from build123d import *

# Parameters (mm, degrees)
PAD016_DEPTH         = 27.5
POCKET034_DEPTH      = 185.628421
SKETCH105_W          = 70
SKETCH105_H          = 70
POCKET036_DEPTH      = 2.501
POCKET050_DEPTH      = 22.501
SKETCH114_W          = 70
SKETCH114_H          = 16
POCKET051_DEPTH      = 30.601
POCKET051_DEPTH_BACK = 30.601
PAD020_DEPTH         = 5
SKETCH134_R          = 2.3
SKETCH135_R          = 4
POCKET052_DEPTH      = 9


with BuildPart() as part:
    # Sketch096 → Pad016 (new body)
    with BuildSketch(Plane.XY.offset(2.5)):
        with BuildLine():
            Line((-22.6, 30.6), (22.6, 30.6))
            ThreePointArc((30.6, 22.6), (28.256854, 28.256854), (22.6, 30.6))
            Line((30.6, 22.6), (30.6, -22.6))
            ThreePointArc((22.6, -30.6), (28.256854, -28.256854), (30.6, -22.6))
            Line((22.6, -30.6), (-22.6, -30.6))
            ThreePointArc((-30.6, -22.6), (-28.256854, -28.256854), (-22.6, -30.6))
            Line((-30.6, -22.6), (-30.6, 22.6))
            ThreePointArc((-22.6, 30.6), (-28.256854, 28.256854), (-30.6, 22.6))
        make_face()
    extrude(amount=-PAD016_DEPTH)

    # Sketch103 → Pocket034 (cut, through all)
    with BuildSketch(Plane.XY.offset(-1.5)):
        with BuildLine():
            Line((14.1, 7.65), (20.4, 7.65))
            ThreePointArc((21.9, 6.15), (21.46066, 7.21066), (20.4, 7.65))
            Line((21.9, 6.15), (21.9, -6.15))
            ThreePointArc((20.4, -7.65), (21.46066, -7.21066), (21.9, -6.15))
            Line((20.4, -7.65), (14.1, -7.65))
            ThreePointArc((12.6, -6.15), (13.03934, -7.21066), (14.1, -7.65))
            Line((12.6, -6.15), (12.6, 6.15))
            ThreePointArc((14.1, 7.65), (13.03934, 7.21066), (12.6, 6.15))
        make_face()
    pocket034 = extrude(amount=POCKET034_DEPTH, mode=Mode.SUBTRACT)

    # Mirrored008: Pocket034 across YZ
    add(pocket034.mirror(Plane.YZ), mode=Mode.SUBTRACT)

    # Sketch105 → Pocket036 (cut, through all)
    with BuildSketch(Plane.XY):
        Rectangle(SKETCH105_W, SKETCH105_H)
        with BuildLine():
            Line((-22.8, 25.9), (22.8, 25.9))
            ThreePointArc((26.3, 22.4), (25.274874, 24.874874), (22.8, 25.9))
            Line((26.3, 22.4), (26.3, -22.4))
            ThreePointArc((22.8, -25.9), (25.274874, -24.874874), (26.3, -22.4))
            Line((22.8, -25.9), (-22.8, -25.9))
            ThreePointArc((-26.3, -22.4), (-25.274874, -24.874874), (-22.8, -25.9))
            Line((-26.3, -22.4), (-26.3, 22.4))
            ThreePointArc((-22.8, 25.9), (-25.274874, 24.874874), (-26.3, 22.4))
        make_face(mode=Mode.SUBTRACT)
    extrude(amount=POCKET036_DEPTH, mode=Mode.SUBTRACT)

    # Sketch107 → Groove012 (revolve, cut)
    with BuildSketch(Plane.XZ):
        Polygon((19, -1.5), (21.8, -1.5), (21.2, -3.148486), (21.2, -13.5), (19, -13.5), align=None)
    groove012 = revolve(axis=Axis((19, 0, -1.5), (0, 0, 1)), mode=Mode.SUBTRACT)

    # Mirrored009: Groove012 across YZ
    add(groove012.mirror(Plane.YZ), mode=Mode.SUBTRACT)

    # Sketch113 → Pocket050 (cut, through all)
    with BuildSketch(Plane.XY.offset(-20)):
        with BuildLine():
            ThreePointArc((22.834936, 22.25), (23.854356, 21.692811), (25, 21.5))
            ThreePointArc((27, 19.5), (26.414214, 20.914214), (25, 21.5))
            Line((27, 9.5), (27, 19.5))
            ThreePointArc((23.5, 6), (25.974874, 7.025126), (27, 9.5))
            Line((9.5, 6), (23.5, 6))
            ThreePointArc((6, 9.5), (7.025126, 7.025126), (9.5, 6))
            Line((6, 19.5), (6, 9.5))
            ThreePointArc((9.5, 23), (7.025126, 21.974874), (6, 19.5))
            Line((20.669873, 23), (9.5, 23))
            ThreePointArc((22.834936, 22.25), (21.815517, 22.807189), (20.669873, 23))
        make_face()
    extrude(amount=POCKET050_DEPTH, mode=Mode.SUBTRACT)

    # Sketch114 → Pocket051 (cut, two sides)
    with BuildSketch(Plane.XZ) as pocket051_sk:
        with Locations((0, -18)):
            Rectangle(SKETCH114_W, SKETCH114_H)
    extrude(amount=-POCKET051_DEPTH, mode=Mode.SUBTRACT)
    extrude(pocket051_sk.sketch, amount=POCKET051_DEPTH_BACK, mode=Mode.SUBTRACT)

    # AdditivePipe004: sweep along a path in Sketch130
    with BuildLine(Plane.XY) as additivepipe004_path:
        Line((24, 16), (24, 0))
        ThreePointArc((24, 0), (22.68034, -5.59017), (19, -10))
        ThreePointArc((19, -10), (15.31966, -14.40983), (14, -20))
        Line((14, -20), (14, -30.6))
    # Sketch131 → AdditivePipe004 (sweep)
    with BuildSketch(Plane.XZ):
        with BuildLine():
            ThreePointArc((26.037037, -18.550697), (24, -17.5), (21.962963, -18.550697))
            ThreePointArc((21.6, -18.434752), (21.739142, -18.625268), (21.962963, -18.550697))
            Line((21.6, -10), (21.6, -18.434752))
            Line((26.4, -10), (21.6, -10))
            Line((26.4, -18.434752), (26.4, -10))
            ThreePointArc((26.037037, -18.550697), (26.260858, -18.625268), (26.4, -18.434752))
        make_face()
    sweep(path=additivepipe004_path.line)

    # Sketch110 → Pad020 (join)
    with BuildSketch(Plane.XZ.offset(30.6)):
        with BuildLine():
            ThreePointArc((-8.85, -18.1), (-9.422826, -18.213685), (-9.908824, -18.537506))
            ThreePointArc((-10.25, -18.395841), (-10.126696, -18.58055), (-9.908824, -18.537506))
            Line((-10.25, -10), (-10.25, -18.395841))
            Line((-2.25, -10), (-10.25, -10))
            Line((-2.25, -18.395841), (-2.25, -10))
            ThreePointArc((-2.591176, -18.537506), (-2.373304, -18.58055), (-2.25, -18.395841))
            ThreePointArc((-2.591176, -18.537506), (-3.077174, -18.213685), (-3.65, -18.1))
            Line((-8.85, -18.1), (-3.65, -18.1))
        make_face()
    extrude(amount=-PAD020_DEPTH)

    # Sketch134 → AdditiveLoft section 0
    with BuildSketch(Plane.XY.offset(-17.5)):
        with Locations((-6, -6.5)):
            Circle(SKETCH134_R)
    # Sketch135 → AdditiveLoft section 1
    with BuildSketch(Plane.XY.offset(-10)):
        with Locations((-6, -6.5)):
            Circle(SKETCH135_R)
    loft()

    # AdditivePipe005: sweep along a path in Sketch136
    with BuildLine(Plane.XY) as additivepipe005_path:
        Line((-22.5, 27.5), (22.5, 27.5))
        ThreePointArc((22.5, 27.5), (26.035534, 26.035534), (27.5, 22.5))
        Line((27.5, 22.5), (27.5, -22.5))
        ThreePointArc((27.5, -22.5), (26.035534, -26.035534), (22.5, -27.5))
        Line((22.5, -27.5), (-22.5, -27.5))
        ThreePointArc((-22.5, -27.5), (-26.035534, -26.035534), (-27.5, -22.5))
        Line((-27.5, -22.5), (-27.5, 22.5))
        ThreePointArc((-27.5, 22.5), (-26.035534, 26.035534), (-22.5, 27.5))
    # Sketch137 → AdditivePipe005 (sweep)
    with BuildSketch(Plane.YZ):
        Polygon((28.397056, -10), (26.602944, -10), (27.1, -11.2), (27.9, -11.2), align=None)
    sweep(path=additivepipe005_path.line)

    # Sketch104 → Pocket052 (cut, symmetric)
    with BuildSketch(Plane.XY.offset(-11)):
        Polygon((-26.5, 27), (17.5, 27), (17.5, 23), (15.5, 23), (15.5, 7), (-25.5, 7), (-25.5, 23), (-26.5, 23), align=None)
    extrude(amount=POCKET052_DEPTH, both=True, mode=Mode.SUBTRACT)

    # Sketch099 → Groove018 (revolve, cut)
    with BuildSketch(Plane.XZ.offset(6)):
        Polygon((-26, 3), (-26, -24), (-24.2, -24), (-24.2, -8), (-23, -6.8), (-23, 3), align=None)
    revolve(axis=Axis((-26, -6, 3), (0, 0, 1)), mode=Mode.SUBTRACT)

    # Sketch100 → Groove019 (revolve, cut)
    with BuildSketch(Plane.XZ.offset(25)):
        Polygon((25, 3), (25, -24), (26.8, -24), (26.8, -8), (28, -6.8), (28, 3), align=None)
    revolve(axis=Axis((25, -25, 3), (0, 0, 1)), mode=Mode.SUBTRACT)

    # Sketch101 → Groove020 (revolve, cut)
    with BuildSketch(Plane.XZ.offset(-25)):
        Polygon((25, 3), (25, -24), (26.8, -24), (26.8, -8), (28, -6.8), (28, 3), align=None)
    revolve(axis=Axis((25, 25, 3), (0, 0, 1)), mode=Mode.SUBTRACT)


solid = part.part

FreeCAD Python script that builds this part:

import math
import FreeCAD as App
import Part
import Sketcher
Q = App.Units.Quantity


def add_polygon(sketch, points):
    """Adds a closed chain of lines whose ends are joined by coincident constraints."""
    first, n = sketch.GeometryCount, len(points)
    for a, b in zip(points, points[1:] + points[:1]):
        sketch.addGeometry(Part.LineSegment(App.Vector(*a, 0), App.Vector(*b, 0)), False)
    for i in range(n):
        sketch.addConstraint(Sketcher.Constraint("Coincident", first + i, 2, first + (i + 1) % n, 1))

doc = App.newDocument("Part")
body = doc.addObject("PartDesign::Body", "Body")

# Sketch on XY plane
sketch1 = body.newObject("Sketcher::SketchObject", "Sketch")
sketch1.AttachmentSupport = (doc.getObject("XY_Plane"), [""])
sketch1.MapMode = "FlatFace"
sketch1.AttachmentOffset = App.Placement(App.Vector(0, 0, 2.5), App.Rotation())
sketch1.addGeometry([
    Part.LineSegment(App.Vector(23, 31, 0), App.Vector(-23, 31, 0)),  # 0
    Part.ArcOfCircle(Part.Circle(App.Vector(-23, 23, 0), App.Vector(0, 0, 1), 8), math.radians(90), math.radians(180)),  # 1
    Part.LineSegment(App.Vector(-31, 23, 0), App.Vector(-31, -23, 0)),  # 2
    Part.ArcOfCircle(Part.Circle(App.Vector(-23, -23, 0), App.Vector(0, 0, 1), 8), math.radians(-180), math.radians(-90)),  # 3
    Part.LineSegment(App.Vector(-23, -31, 0), App.Vector(23, -31, 0)),  # 4
    Part.ArcOfCircle(Part.Circle(App.Vector(23, -23, 0), App.Vector(0, 0, 1), 8), math.radians(-90), math.radians(0)),  # 5
    Part.LineSegment(App.Vector(31, -23, 0), App.Vector(31, 23, 0)),  # 6
    Part.ArcOfCircle(Part.Circle(App.Vector(23, 23, 0), App.Vector(0, 0, 1), 8), math.radians(0), math.radians(90)),  # 7
], False)
sketch1.addConstraint([
    Sketcher.Constraint("Tangent", 0, 2, 1, 1),
    Sketcher.Constraint("Tangent", 1, 2, 2, 1),
    Sketcher.Constraint("Tangent", 2, 2, 3, 1),
    Sketcher.Constraint("Tangent", 3, 2, 4, 1),
    Sketcher.Constraint("Tangent", 4, 2, 5, 1),
    Sketcher.Constraint("Tangent", 5, 2, 6, 1),
    Sketcher.Constraint("Tangent", 6, 2, 7, 1),
    Sketcher.Constraint("Tangent", 7, 2, 0, 1),
    Sketcher.Constraint("Horizontal", 0),
    Sketcher.Constraint("Vertical", 2),
    Sketcher.Constraint("Horizontal", 4),
    Sketcher.Constraint("Vertical", 6),
    Sketcher.Constraint("Equal", 1, 3),
    Sketcher.Constraint("Equal", 3, 5),
    Sketcher.Constraint("Equal", 5, 7),
    Sketcher.Constraint("Symmetric", 1, 3, 5, 3, -1, 1),
    Sketcher.Constraint("Equal", 4, 2),
    Sketcher.Constraint("Radius", 1, Q("8.000001 mm")),
    Sketcher.Constraint("DistanceX", 0, 2, 0, 1, Q("45.2 mm")),
])
pad1 = body.newObject("PartDesign::Pad", "Pad")
pad1.Profile = sketch1
pad1.Length = 27.5
pad1.Reversed = True

# Sketch on XY plane
sketch2 = body.newObject("Sketcher::SketchObject", "Sketch001")
sketch2.AttachmentSupport = (doc.getObject("XY_Plane"), [""])
sketch2.MapMode = "FlatFace"
sketch2.AttachmentOffset = App.Placement(App.Vector(0, 0, -1.5), App.Rotation())
sketch2.addGeometry([
    Part.LineSegment(App.Vector(20.4, 7.7, 0), App.Vector(14.1, 7.7, 0)),  # 0
    Part.ArcOfCircle(Part.Circle(App.Vector(14.1, 6.1, 0), App.Vector(0, 0, 1), 1.5), math.radians(90), math.radians(180)),  # 1
    Part.LineSegment(App.Vector(12.6, 6.2, 0), App.Vector(12.6, -6.2, 0)),  # 2
    Part.ArcOfCircle(Part.Circle(App.Vector(14.1, -6.1, 0), App.Vector(0, 0, 1), 1.5), math.radians(-180), math.radians(-90)),  # 3
    Part.LineSegment(App.Vector(14.1, -7.7, 0), App.Vector(20.4, -7.7, 0)),  # 4
    Part.ArcOfCircle(Part.Circle(App.Vector(20.4, -6.1, 0), App.Vector(0, 0, 1), 1.5), math.radians(-90), math.radians(0)),  # 5
    Part.LineSegment(App.Vector(21.9, -6.2, 0), App.Vector(21.9, 6.2, 0)),  # 6
    Part.ArcOfCircle(Part.Circle(App.Vector(20.4, 6.1, 0), App.Vector(0, 0, 1), 1.5), math.radians(0), math.radians(90)),  # 7
], False)
sketch2.addConstraint([
    Sketcher.Constraint("Tangent", 0, 2, 1, 1),
    Sketcher.Constraint("Tangent", 1, 2, 2, 1),
    Sketcher.Constraint("Tangent", 2, 2, 3, 1),
    Sketcher.Constraint("Tangent", 3, 2, 4, 1),
    Sketcher.Constraint("Tangent", 4, 2, 5, 1),
    Sketcher.Constraint("Tangent", 5, 2, 6, 1),
    Sketcher.Constraint("Tangent", 6, 2, 7, 1),
    Sketcher.Constraint("Tangent", 7, 2, 0, 1),
    Sketcher.Constraint("Horizontal", 0),
    Sketcher.Constraint("Vertical", 2),
    Sketcher.Constraint("Horizontal", 4),
    Sketcher.Constraint("Vertical", 6),
    Sketcher.Constraint("Equal", 1, 3),
    Sketcher.Constraint("Equal", 3, 5),
    Sketcher.Constraint("Equal", 5, 7),
    Sketcher.Constraint("Radius", 1, Q("1.500001 mm")),
    Sketcher.Constraint("DistanceX", 0, 2, 0, 1, Q("6.3 mm")),
    Sketcher.Constraint("DistanceY", 2, 2, 2, 1, Q("12.3 mm")),
    Sketcher.Constraint("DistanceX", -1, 1, 1, 3, Q("14.100001 mm")),
    Sketcher.Constraint("DistanceY", -1, 1, 1, 3, Q("6.149999 mm")),
])
pocket1 = body.newObject("PartDesign::Pocket", "Pocket")
pocket1.Profile = sketch2
pocket1.Type = "ThroughAll"
pocket1.Reversed = True
doc.recompute()

mirrored = body.newObject("PartDesign::Mirrored", "Mirrored")
mirrored.Originals = [pocket1]
mirrored.MirrorPlane = (doc.getObject("YZ_Plane"), [""])
body.Tip = mirrored

# Sketch on XY plane
sketch3 = body.newObject("Sketcher::SketchObject", "Sketch002")
sketch3.AttachmentSupport = (doc.getObject("XY_Plane"), [""])
sketch3.MapMode = "FlatFace"
add_polygon(sketch3, [(-35, 35), (-35, -35), (35, -35), (35, 35)])  # lines 0-3
sketch3.addGeometry(Part.ArcOfCircle(Part.Circle(App.Vector(-22.8, 22.4, 0), App.Vector(0, 0, 1), 3.5), math.radians(90), math.radians(180)), False)  # 4
sketch3.addGeometry(Part.LineSegment(App.Vector(-22.8, 25.9, 0), App.Vector(22.8, 25.9, 0)), False)  # 5
sketch3.addGeometry(Part.ArcOfCircle(Part.Circle(App.Vector(22.8, 22.4, 0), App.Vector(0, 0, 1), 3.5), math.radians(0), math.radians(90)), False)  # 6
sketch3.addGeometry(Part.LineSegment(App.Vector(26.3, 22.4, 0), App.Vector(26.3, -22.4, 0)), False)  # 7
sketch3.addGeometry(Part.ArcOfCircle(Part.Circle(App.Vector(22.8, -22.4, 0), App.Vector(0, 0, 1), 3.5), math.radians(-90), math.radians(0)), False)  # 8
sketch3.addGeometry(Part.LineSegment(App.Vector(22.8, -25.9, 0), App.Vector(-22.8, -25.9, 0)), False)  # 9
sketch3.addGeometry(Part.ArcOfCircle(Part.Circle(App.Vector(-22.8, -22.4, 0), App.Vector(0, 0, 1), 3.5), math.radians(180), math.radians(270)), False)  # 10
sketch3.addGeometry(Part.LineSegment(App.Vector(-26.3, -22.4, 0), App.Vector(-26.3, 22.4, 0)), False)  # 11
sketch3.addConstraint([
    Sketcher.Constraint("Tangent", 4, 1, 5, 1),
    Sketcher.Constraint("Tangent", 5, 2, 6, 2),
    Sketcher.Constraint("Tangent", 6, 1, 7, 1),
    Sketcher.Constraint("Tangent", 7, 2, 8, 2),
    Sketcher.Constraint("Tangent", 8, 1, 9, 1),
    Sketcher.Constraint("Tangent", 9, 2, 10, 2),
    Sketcher.Constraint("Tangent", 10, 1, 11, 1),
    Sketcher.Constraint("Tangent", 11, 2, 4, 2),
    Sketcher.Constraint("Vertical", 0),
    Sketcher.Constraint("Horizontal", 1),
    Sketcher.Constraint("Vertical", 2),
    Sketcher.Constraint("Horizontal", 3),
    Sketcher.Constraint("Horizontal", 5),
    Sketcher.Constraint("Vertical", 7),
    Sketcher.Constraint("Horizontal", 9),
    Sketcher.Constraint("Vertical", 11),
    Sketcher.Constraint("Equal", 4, 6),
    Sketcher.Constraint("Equal", 6, 8),
    Sketcher.Constraint("Equal", 8, 10),
    Sketcher.Constraint("Symmetric", 4, 3, 8, 3, -1, 1),
    Sketcher.Constraint("Symmetric", 0, 2, 2, 2, -1, 1),
    Sketcher.Constraint("Equal", 3, 0),
    Sketcher.Constraint("Radius", 4, Q("3.499999 mm")),
    Sketcher.Constraint("DistanceX", 1, 1, 1, 2, Q("70 mm")),
    Sketcher.Constraint("DistanceX", 5, 1, 5, 2, Q("45.6 mm")),
    Sketcher.Constraint("DistanceY", 7, 2, 7, 1, Q("44.8 mm")),
])
pocket2 = body.newObject("PartDesign::Pocket", "Pocket001")
pocket2.Profile = sketch3
pocket2.Type = "ThroughAll"
pocket2.Reversed = True

# Sketch on XZ plane
sketch4 = body.newObject("Sketcher::SketchObject", "Sketch003")
sketch4.AttachmentSupport = (doc.getObject("XZ_Plane"), [""])
sketch4.MapMode = "FlatFace"
add_polygon(sketch4, [(21.8, -1.5), (19, -1.5), (19, -13.5), (21.2, -13.5), (21.2, -3.1)])  # lines 0-4
sketch4.addGeometry(Part.LineSegment(App.Vector(19, -13.5, 0), App.Vector(19, -1.5, 0)), True)  # axis
sketch4.addConstraint([
    Sketcher.Constraint("Horizontal", 0),
    Sketcher.Constraint("Vertical", 1),
    Sketcher.Constraint("Horizontal", 2),
    Sketcher.Constraint("Vertical", 3),
    Sketcher.Constraint("Vertical", 5),
    Sketcher.Constraint("Coincident", 5, 1, 1, 2),
    Sketcher.Constraint("Horizontal", 4, 2, 5, 2),
    Sketcher.Constraint("DistanceY", 1, 2, 1, 1, Q("12 mm")),
    Sketcher.Constraint("Angle", 4, Q("69.999995 deg")),
    Sketcher.Constraint("DistanceX", 0, 2, 0, 1, Q("2.8 mm")),
    Sketcher.Constraint("DistanceX", 2, 1, 2, 2, Q("2.2 mm")),
    Sketcher.Constraint("DistanceX", -1, 1, 0, 2, Q("19 mm")),
    Sketcher.Constraint("DistanceY", 0, 2, -1, 1, Q("1.5 mm")),
])
groove = body.newObject("PartDesign::Groove", "Groove")
groove.Profile = sketch4
groove.ReferenceAxis = (sketch4, ["Axis0"])
groove.Angle = 360
doc.recompute()

mirrored2 = body.newObject("PartDesign::Mirrored", "Mirrored001")
mirrored2.Originals = [groove]
mirrored2.MirrorPlane = (doc.getObject("YZ_Plane"), [""])
body.Tip = mirrored2

# Sketch on XY plane
sketch5 = body.newObject("Sketcher::SketchObject", "Sketch004")
sketch5.AttachmentSupport = (doc.getObject("XY_Plane"), [""])
sketch5.MapMode = "FlatFace"
sketch5.AttachmentOffset = App.Placement(App.Vector(0, 0, -20), App.Rotation())
sketch5.addGeometry([
    Part.ArcOfCircle(Part.Circle(App.Vector(25, 25, 0), App.Vector(0, 0, 1), 3.5), math.radians(-128), math.radians(-90)),  # 0
    Part.ArcOfCircle(Part.Circle(App.Vector(20.7, 19.5, 0), App.Vector(0, 0, 1), 3.5), math.radians(52), math.radians(90)),  # 1
    Part.LineSegment(App.Vector(20.7, 23, 0), App.Vector(9.5, 23, 0)),  # 2
    Part.ArcOfCircle(Part.Circle(App.Vector(9.5, 19.5, 0), App.Vector(0, 0, 1), 3.5), math.radians(90), math.radians(180)),  # 3
    Part.LineSegment(App.Vector(6, 19.5, 0), App.Vector(6, 9.5, 0)),  # 4
    Part.ArcOfCircle(Part.Circle(App.Vector(9.5, 9.5, 0), App.Vector(0, 0, 1), 3.5), math.radians(180), math.radians(270)),  # 5
    Part.LineSegment(App.Vector(9.5, 6, 0), App.Vector(23.5, 6, 0)),  # 6
    Part.ArcOfCircle(Part.Circle(App.Vector(23.5, 9.5, 0), App.Vector(0, 0, 1), 3.5), math.radians(-90), math.radians(0)),  # 7
    Part.LineSegment(App.Vector(27, 9.5, 0), App.Vector(27, 19.5, 0)),  # 8
    Part.ArcOfCircle(Part.Circle(App.Vector(25, 19.5, 0), App.Vector(0, 0, 1), 2), math.radians(0), math.radians(90)),  # 9
], False)
sketch5.addConstraint([
    Sketcher.Constraint("Tangent", 0, 1, 1, 1),
    Sketcher.Constraint("Tangent", 1, 2, 2, 1),
    Sketcher.Constraint("Tangent", 2, 2, 3, 1),
    Sketcher.Constraint("Tangent", 3, 2, 4, 1),
    Sketcher.Constraint("Tangent", 4, 2, 5, 1),
    Sketcher.Constraint("Tangent", 5, 2, 6, 1),
    Sketcher.Constraint("Tangent", 6, 2, 7, 1),
    Sketcher.Constraint("Tangent", 7, 2, 8, 1),
    Sketcher.Constraint("Tangent", 8, 2, 9, 1),
    Sketcher.Constraint("Tangent", 9, 2, 0, 2),
    Sketcher.Constraint("Horizontal", 2),
    Sketcher.Constraint("Vertical", 4),
    Sketcher.Constraint("Horizontal", 6),
    Sketcher.Constraint("Vertical", 8),
    Sketcher.Constraint("Equal", 1, 3),
    Sketcher.Constraint("Equal", 3, 5),
    Sketcher.Constraint("Equal", 5, 7),
    Sketcher.Constraint("Horizontal", 3, 3, 9, 3),
    Sketcher.Constraint("Vertical", 0, 3, 9, 3),
    Sketcher.Constraint("Radius", 9, Q("1.999999 mm")),
    Sketcher.Constraint("Radius", 1, Q("3.499999 mm")),
    Sketcher.Constraint("DistanceX", 6, 1, 6, 2, Q("14 mm")),
    Sketcher.Constraint("DistanceY", 4, 2, 4, 1, Q("10 mm")),
    Sketcher.Constraint("DistanceX", -1, 1, 0, 3, Q("25.000001 mm")),
    Sketcher.Constraint("DistanceY", -1, 1, 1, 2, Q("23 mm")),
    Sketcher.Constraint("DistanceY", -1, 1, 0, 1, Q("22.25 mm")),
])
pocket3 = body.newObject("PartDesign::Pocket", "Pocket002")
pocket3.Profile = sketch5
pocket3.Type = "ThroughAll"
pocket3.Reversed = True

# Sketch on XZ plane
sketch6 = body.newObject("Sketcher::SketchObject", "Sketch005")
sketch6.AttachmentSupport = (doc.getObject("XZ_Plane"), [""])
sketch6.MapMode = "FlatFace"
add_polygon(sketch6, [(-35, -10), (-35, -26), (35, -26), (35, -10)])  # lines 0-3
sketch6.addConstraint([
    Sketcher.Constraint("Vertical", 0),
    Sketcher.Constraint("Horizontal", 1),
    Sketcher.Constraint("Vertical", 2),
    Sketcher.Constraint("Horizontal", 3),
    Sketcher.Constraint("DistanceX", 1, 1, 1, 2, Q("70 mm")),
    Sketcher.Constraint("DistanceY", 0, 2, 0, 1, Q("16 mm")),
    Sketcher.Constraint("DistanceX", 0, 2, -1, 1, Q("35 mm")),
    Sketcher.Constraint("DistanceY", 0, 2, -1, 1, Q("26 mm")),
])
pocket4 = body.newObject("PartDesign::Pocket", "Pocket003")
pocket4.Profile = sketch6
pocket4.Type = "ThroughAll"
pocket4.Midplane = True

# Sketch on XZ plane
sketch7 = body.newObject("Sketcher::SketchObject", "Sketch006")
sketch7.AttachmentSupport = (doc.getObject("XZ_Plane"), [""])
sketch7.MapMode = "FlatFace"
sketch7.addGeometry([
    Part.ArcOfCircle(Part.Circle(App.Vector(24, -20, 0), App.Vector(0, 0, 1), 2.5), math.radians(35), math.radians(145)),  # 0
    Part.ArcOfCircle(Part.Circle(App.Vector(26.2, -18.43, 0), App.Vector(0, 0, 1), 0.2), math.radians(-145), math.radians(0)),  # 1
    Part.LineSegment(App.Vector(26.4, -18.43, 0), App.Vector(26.4, -10, 0)),  # 2
    Part.LineSegment(App.Vector(26.4, -10, 0), App.Vector(21.6, -10, 0)),  # 3
    Part.LineSegment(App.Vector(21.6, -10, 0), App.Vector(21.6, -18.43, 0)),  # 4
    Part.ArcOfCircle(Part.Circle(App.Vector(21.8, -18.43, 0), App.Vector(0, 0, 1), 0.2), math.radians(-180), math.radians(-35)),  # 5
], False)
sketch7.addConstraint([
    Sketcher.Constraint("Coincident", 0, 1, 1, 1),
    Sketcher.Constraint("Tangent", 1, 2, 2, 1),
    Sketcher.Constraint("Coincident", 2, 2, 3, 1),
    Sketcher.Constraint("Coincident", 3, 2, 4, 1),
    Sketcher.Constraint("Tangent", 4, 2, 5, 1),
    Sketcher.Constraint("Coincident", 5, 2, 0, 2),
    Sketcher.Constraint("Vertical", 2),
    Sketcher.Constraint("Horizontal", 3),
    Sketcher.Constraint("Vertical", 4),
    Sketcher.Constraint("Equal", 1, 5),
    Sketcher.Constraint("Horizontal", 1, 3, 5, 3),
    Sketcher.Constraint("Horizontal", 0, 1, 5, 2),
    Sketcher.Constraint("Radius", 0, Q("2.499999 mm")),
    Sketcher.Constraint("Radius", 1, Q("0.2 mm")),
    Sketcher.Constraint("DistanceX", 3, 2, 3, 1, Q("4.8 mm")),
    Sketcher.Constraint("DistanceX", -1, 1, 0, 3, Q("24 mm")),
    Sketcher.Constraint("DistanceY", 0, 3, -1, 1, Q("19.999999 mm")),
    Sketcher.Constraint("DistanceY", 2, 2, -1, 1, Q("10 mm")),
    Sketcher.Constraint("DistanceX", -1, 1, 0, 1, Q("26.037037 mm")),
])

# Sketch on XY plane
sketch8 = body.newObject("Sketcher::SketchObject", "Sketch007")
sketch8.AttachmentSupport = (doc.getObject("XY_Plane"), [""])
sketch8.MapMode = "FlatFace"
sketch8.addGeometry([
    Part.LineSegment(App.Vector(24, 16, 0), App.Vector(24, 0, 0)),
    Part.ArcOfCircle(Part.Circle(App.Vector(12, 0, 0), App.Vector(0, 0, 1), 12), math.radians(-53), math.radians(0)),
    Part.ArcOfCircle(Part.Circle(App.Vector(26, -20, 0), App.Vector(0, 0, 1), 12), math.radians(127), math.radians(180)),
    Part.LineSegment(App.Vector(14, -20, 0), App.Vector(14, -31, 0)),
], False)
sketch8.addConstraint([
    Sketcher.Constraint("Tangent", 0, 2, 1, 2),
    Sketcher.Constraint("Tangent", 1, 1, 2, 1),
    Sketcher.Constraint("Tangent", 2, 2, 3, 1),
    Sketcher.Constraint("Vertical", 0),
    Sketcher.Constraint("Vertical", 3),
    Sketcher.Constraint("Equal", 1, 2),
    Sketcher.Constraint("PointOnObject", 1, 3, -1),
    Sketcher.Constraint("Radius", 1, Q("12.499999 mm")),
    Sketcher.Constraint("DistanceY", 0, 2, 0, 1, Q("16 mm")),
    Sketcher.Constraint("DistanceY", 3, 2, 3, 1, Q("10.6 mm")),
    Sketcher.Constraint("DistanceY", 2, 3, -1, 1, Q("19.999999 mm")),
    Sketcher.Constraint("DistanceX", -1, 1, 0, 1, Q("24 mm")),
])
doc.recompute()

additivepipe = body.newObject("PartDesign::AdditivePipe", "AdditivePipe")
additivepipe.Profile = sketch7
additivepipe.Spine = (sketch8, ["Edge1", "Edge2", "Edge3", "Edge4"])

# Sketch on XZ plane
sketch9 = body.newObject("Sketcher::SketchObject", "Sketch008")
sketch9.AttachmentSupport = (doc.getObject("XZ_Plane"), [""])
sketch9.MapMode = "FlatFace"
sketch9.AttachmentOffset = App.Placement(App.Vector(0, 0, 30.6), App.Rotation())
sketch9.addGeometry([
    Part.ArcOfCircle(Part.Circle(App.Vector(-8.85, -19.6, 0), App.Vector(0, 0, 1), 1.5), math.radians(90), math.radians(135)),  # 0
    Part.LineSegment(App.Vector(-8.85, -18.1, 0), App.Vector(-3.65, -18.1, 0)),  # 1
    Part.ArcOfCircle(Part.Circle(App.Vector(-3.65, -19.6, 0), App.Vector(0, 0, 1), 1.5), math.radians(45), math.radians(90)),  # 2
    Part.ArcOfCircle(Part.Circle(App.Vector(-2.45, -18.4, 0), App.Vector(0, 0, 1), 0.2), math.radians(-135), math.radians(0)),  # 3
    Part.LineSegment(App.Vector(-2.25, -18.4, 0), App.Vector(-2.25, -10, 0)),  # 4
    Part.LineSegment(App.Vector(-2.25, -10, 0), App.Vector(-10.25, -10, 0)),  # 5
    Part.LineSegment(App.Vector(-10.25, -10, 0), App.Vector(-10.25, -18.4, 0)),  # 6
    Part.ArcOfCircle(Part.Circle(App.Vector(-10.05, -18.4, 0), App.Vector(0, 0, 1), 0.2), math.radians(-180), math.radians(-45)),  # 7
], False)
sketch9.addConstraint([
    Sketcher.Constraint("Tangent", 0, 1, 1, 1),
    Sketcher.Constraint("Tangent", 1, 2, 2, 2),
    Sketcher.Constraint("Coincident", 2, 1, 3, 1),
    Sketcher.Constraint("Coincident", 3, 2, 4, 1),
    Sketcher.Constraint("Coincident", 4, 2, 5, 1),
    Sketcher.Constraint("Coincident", 5, 2, 6, 1),
    Sketcher.Constraint("Coincident", 6, 2, 7, 1),
    Sketcher.Constraint("Coincident", 7, 2, 0, 2),
    Sketcher.Constraint("Horizontal", 1),
    Sketcher.Constraint("Vertical", 4),
    Sketcher.Constraint("Horizontal", 5),
    Sketcher.Constraint("Vertical", 6),
    Sketcher.Constraint("Equal", 0, 2),
    Sketcher.Constraint("Equal", 3, 7),
    Sketcher.Constraint("Horizontal", 3, 3, 7, 3),
    Sketcher.Constraint("Horizontal", 7, 3, 3, 2),
    Sketcher.Constraint("Horizontal", 3, 2, 6, 2),
    Sketcher.Constraint("Horizontal", 2, 1, 7, 2),
    Sketcher.Constraint("Radius", 3, Q("0.2 mm")),
    Sketcher.Constraint("DistanceX", 5, 2, 5, 1, Q("8 mm")),
    Sketcher.Constraint("DistanceX", 1, 1, 1, 2, Q("5.2 mm")),
    Sketcher.Constraint("DistanceY", 4, 2, -1, 1, Q("10 mm")),
    Sketcher.Constraint("DistanceY", 0, 1, -1, 1, Q("18.1 mm")),
    Sketcher.Constraint("DistanceX", 3, 3, -1, 1, Q("2.45 mm")),
    Sketcher.Constraint("Radius", 0, Q("1.500008 mm")),
    Sketcher.Constraint("DistanceX", 0, 3, 2, 1, Q("6.258821 mm")),
])
pad2 = body.newObject("PartDesign::Pad", "Pad001")
pad2.Profile = sketch9
pad2.Length = 5
pad2.Reversed = True

# Sketch on XY plane
sketch10 = body.newObject("Sketcher::SketchObject", "Sketch009")
sketch10.AttachmentSupport = (doc.getObject("XY_Plane"), [""])
sketch10.MapMode = "FlatFace"
sketch10.AttachmentOffset = App.Placement(App.Vector(0, 0, -17.5), App.Rotation())
sketch10.addGeometry(Part.Circle(App.Vector(-6, -6.5, 0), App.Vector(0, 0, 1), 2.3), False)
sketch10.addConstraint([
    Sketcher.Constraint("Diameter", 0, Q("4.6 mm")),
    Sketcher.Constraint("DistanceX", 0, 3, -1, 1, Q("6 mm")),
    Sketcher.Constraint("DistanceY", 0, 3, -1, 1, Q("6.5 mm")),
])

# Sketch on XY plane
sketch11 = body.newObject("Sketcher::SketchObject", "Sketch010")
sketch11.AttachmentSupport = (doc.getObject("XY_Plane"), [""])
sketch11.MapMode = "FlatFace"
sketch11.AttachmentOffset = App.Placement(App.Vector(0, 0, -10), App.Rotation())
sketch11.addGeometry(Part.Circle(App.Vector(-6, -6.5, 0), App.Vector(0, 0, 1), 4), False)
sketch11.addConstraint([
    Sketcher.Constraint("Diameter", 0, Q("8 mm")),
    Sketcher.Constraint("DistanceX", 0, 3, -1, 1, Q("6 mm")),
    Sketcher.Constraint("DistanceY", 0, 3, -1, 1, Q("6.5 mm")),
])

additiveloft = body.newObject("PartDesign::AdditiveLoft", "AdditiveLoft")
additiveloft.Profile = sketch10
additiveloft.Sections = [sketch11]

# Sketch on YZ plane
sketch12 = body.newObject("Sketcher::SketchObject", "Sketch011")
sketch12.AttachmentSupport = (doc.getObject("YZ_Plane"), [""])
sketch12.MapMode = "FlatFace"
add_polygon(sketch12, [(28.4, -10), (26.6, -10), (27.1, -11.2), (27.9, -11.2)])  # lines 0-3
sketch12.addConstraint([
    Sketcher.Constraint("Horizontal", 0),
    Sketcher.Constraint("Horizontal", 2),
    Sketcher.Constraint("Equal", 1, 3),
    Sketcher.Constraint("DistanceX", 2, 1, 2, 2, Q("0.8 mm")),
    Sketcher.Constraint("DistanceY", 0, 2, -1, 1, Q("10 mm")),
    Sketcher.Constraint("Angle", 1, Q("-67.500011 deg")),
    Sketcher.Constraint("DistanceX", -1, 1, 1, 2, Q("27.1 mm")),
    Sketcher.Constraint("DistanceY", 1, 2, -1, 1, Q("11.2 mm")),
])

# Sketch on XY plane
sketch13 = body.newObject("Sketcher::SketchObject", "Sketch012")
sketch13.AttachmentSupport = (doc.getObject("XY_Plane"), [""])
sketch13.MapMode = "FlatFace"
sketch13.addGeometry([
    Part.LineSegment(App.Vector(-22.5, 27.5, 0), App.Vector(22.5, 27.5, 0)),  # 0
    Part.ArcOfCircle(Part.Circle(App.Vector(22.5, 22.5, 0), App.Vector(0, 0, 1), 5), math.radians(0), math.radians(90)),  # 1
    Part.LineSegment(App.Vector(27.5, 22.5, 0), App.Vector(27.5, -22.5, 0)),  # 2
    Part.ArcOfCircle(Part.Circle(App.Vector(22.5, -22.5, 0), App.Vector(0, 0, 1), 5), math.radians(-90), math.radians(0)),  # 3
    Part.LineSegment(App.Vector(22.5, -27.5, 0), App.Vector(-22.5, -27.5, 0)),  # 4
    Part.ArcOfCircle(Part.Circle(App.Vector(-22.5, -22.5, 0), App.Vector(0, 0, 1), 5), math.radians(180), math.radians(270)),  # 5
    Part.LineSegment(App.Vector(-27.5, -22.5, 0), App.Vector(-27.5, 22.5, 0)),  # 6
    Part.ArcOfCircle(Part.Circle(App.Vector(-22.5, 22.5, 0), App.Vector(0, 0, 1), 5), math.radians(90), math.radians(180)),  # 7
], False)
sketch13.addConstraint([
    Sketcher.Constraint("Tangent", 0, 2, 1, 2),
    Sketcher.Constraint("Tangent", 1, 1, 2, 1),
    Sketcher.Constraint("Tangent", 2, 2, 3, 2),
    Sketcher.Constraint("Tangent", 3, 1, 4, 1),
    Sketcher.Constraint("Tangent", 4, 2, 5, 2),
    Sketcher.Constraint("Tangent", 5, 1, 6, 1),
    Sketcher.Constraint("Tangent", 6, 2, 7, 2),
    Sketcher.Constraint("Tangent", 7, 1, 0, 1),
    Sketcher.Constraint("Horizontal", 0),
    Sketcher.Constraint("Vertical", 2),
    Sketcher.Constraint("Horizontal", 4),
    Sketcher.Constraint("Vertical", 6),
    Sketcher.Constraint("Equal", 1, 3),
    Sketcher.Constraint("Equal", 3, 5),
    Sketcher.Constraint("Equal", 5, 7),
    Sketcher.Constraint("Symmetric", 1, 3, 5, 3, -1, 1),
    Sketcher.Constraint("Equal", 4, 2),
    Sketcher.Constraint("Radius", 1, Q("5 mm")),
    Sketcher.Constraint("DistanceX", 0, 1, 0, 2, Q("45 mm")),
])
doc.recompute()

additivepipe2 = body.newObject("PartDesign::AdditivePipe", "AdditivePipe001")
additivepipe2.Profile = sketch12
additivepipe2.Spine = (sketch13, ["Edge1", "Edge2", "Edge3", "Edge4", "Edge5", "Edge6", "Edge7", "Edge8"])

# Sketch on XY plane
sketch14 = body.newObject("Sketcher::SketchObject", "Sketch013")
sketch14.AttachmentSupport = (doc.getObject("XY_Plane"), [""])
sketch14.MapMode = "FlatFace"
sketch14.AttachmentOffset = App.Placement(App.Vector(0, 0, -11), App.Rotation())
add_polygon(sketch14, [(17.5, 27), (-26.5, 27), (-26.5, 23), (-25.5, 23), (-25.5, 7), (15.5, 7), (15.5, 23), (17.5, 23)])  # lines 0-7
sketch14.addConstraint([
    Sketcher.Constraint("Horizontal", 0),
    Sketcher.Constraint("Vertical", 1),
    Sketcher.Constraint("Horizontal", 2),
    Sketcher.Constraint("Vertical", 3),
    Sketcher.Constraint("Horizontal", 4),
    Sketcher.Constraint("Vertical", 5),
    Sketcher.Constraint("Horizontal", 6),
    Sketcher.Constraint("Vertical", 7),
    Sketcher.Constraint("Horizontal", 2, 2, 5, 2),
    Sketcher.Constraint("DistanceX", 0, 2, 0, 1, Q("44 mm")),
    Sketcher.Constraint("DistanceX", 2, 1, 2, 2, Q("1 mm")),
    Sketcher.Constraint("DistanceX", 4, 1, 4, 2, Q("41 mm")),
    Sketcher.Constraint("DistanceY", 1, 2, 1, 1, Q("4 mm")),
    Sketcher.Constraint("DistanceY", 3, 2, 3, 1, Q("16 mm")),
    Sketcher.Constraint("DistanceY", -1, 1, 0, 2, Q("27 mm")),
    Sketcher.Constraint("DistanceX", 0, 2, -1, 1, Q("26.5 mm")),
])
pocket5 = body.newObject("PartDesign::Pocket", "Pocket004")
pocket5.Profile = sketch14
pocket5.Length = 18
pocket5.Midplane = True

# Sketch on XZ plane
sketch15 = body.newObject("Sketcher::SketchObject", "Sketch014")
sketch15.AttachmentSupport = (doc.getObject("XZ_Plane"), [""])
sketch15.MapMode = "FlatFace"
sketch15.AttachmentOffset = App.Placement(App.Vector(0, 0, 6), App.Rotation())
add_polygon(sketch15, [(-26, 3), (-26, -24), (-24.2, -24), (-24.2, -8), (-23, -6.8), (-23, 3)])  # lines 0-5
sketch15.addGeometry(Part.LineSegment(App.Vector(-26, -24, 0), App.Vector(-26, 3, 0)), True)  # axis
sketch15.addConstraint([
    Sketcher.Constraint("Vertical", 0),
    Sketcher.Constraint("Horizontal", 1),
    Sketcher.Constraint("Vertical", 2),
    Sketcher.Constraint("Vertical", 4),
    Sketcher.Constraint("Horizontal", 5),
    Sketcher.Constraint("Vertical", 6),
    Sketcher.Constraint("Coincident", 6, 1, 0, 2),
    Sketcher.Constraint("Horizontal", 4, 2, 6, 2),
    Sketcher.Constraint("DistanceX", 5, 2, 5, 1, Q("3 mm")),
    Sketcher.Constraint("DistanceY", 0, 2, 0, 1, Q("27 mm")),
    Sketcher.Constraint("DistanceY", 2, 1, 2, 2, Q("16 mm")),
    Sketcher.Constraint("Angle", 3, Q("45 deg")),
    Sketcher.Constraint("DistanceX", 1, 1, 1, 2, Q("1.8 mm")),
    Sketcher.Constraint("DistanceX", 0, 2, -1, 1, Q("26 mm")),
    Sketcher.Constraint("DistanceY", 0, 2, -1, 1, Q("24 mm")),
])
groove2 = body.newObject("PartDesign::Groove", "Groove001")
groove2.Profile = sketch15
groove2.ReferenceAxis = (sketch15, ["Axis0"])
groove2.Angle = 360

# Sketch on XZ plane
sketch16 = body.newObject("Sketcher::SketchObject", "Sketch015")
sketch16.AttachmentSupport = (doc.getObject("XZ_Plane"), [""])
sketch16.MapMode = "FlatFace"
sketch16.AttachmentOffset = App.Placement(App.Vector(0, 0, 25), App.Rotation())
add_polygon(sketch16, [(25, 3), (25, -24), (26.8, -24), (26.8, -8), (28, -6.8), (28, 3)])  # lines 0-5
sketch16.addGeometry(Part.LineSegment(App.Vector(25, -24, 0), App.Vector(25, 3, 0)), True)  # axis
sketch16.addConstraint([
    Sketcher.Constraint("Vertical", 0),
    Sketcher.Constraint("Horizontal", 1),
    Sketcher.Constraint("Vertical", 2),
    Sketcher.Constraint("Vertical", 4),
    Sketcher.Constraint("Horizontal", 5),
    Sketcher.Constraint("Vertical", 6),
    Sketcher.Constraint("Coincident", 6, 1, 0, 2),
    Sketcher.Constraint("Horizontal", 4, 2, 6, 2),
    Sketcher.Constraint("DistanceX", 5, 2, 5, 1, Q("3 mm")),
    Sketcher.Constraint("DistanceY", 0, 2, 0, 1, Q("27 mm")),
    Sketcher.Constraint("DistanceY", 2, 1, 2, 2, Q("16 mm")),
    Sketcher.Constraint("Angle", 3, Q("45 deg")),
    Sketcher.Constraint("DistanceX", 1, 1, 1, 2, Q("1.8 mm")),
    Sketcher.Constraint("DistanceX", -1, 1, 0, 2, Q("25 mm")),
    Sketcher.Constraint("DistanceY", 0, 2, -1, 1, Q("24 mm")),
])
groove3 = body.newObject("PartDesign::Groove", "Groove002")
groove3.Profile = sketch16
groove3.ReferenceAxis = (sketch16, ["Axis0"])
groove3.Angle = 360

# Sketch on XZ plane
sketch17 = body.newObject("Sketcher::SketchObject", "Sketch016")
sketch17.AttachmentSupport = (doc.getObject("XZ_Plane"), [""])
sketch17.MapMode = "FlatFace"
sketch17.AttachmentOffset = App.Placement(App.Vector(0, 0, -25), App.Rotation())
add_polygon(sketch17, [(25, 3), (25, -24), (26.8, -24), (26.8, -8), (28, -6.8), (28, 3)])  # lines 0-5
sketch17.addGeometry(Part.LineSegment(App.Vector(25, -24, 0), App.Vector(25, 3, 0)), True)  # axis
sketch17.addConstraint([
    Sketcher.Constraint("Vertical", 0),
    Sketcher.Constraint("Horizontal", 1),
    Sketcher.Constraint("Vertical", 2),
    Sketcher.Constraint("Vertical", 4),
    Sketcher.Constraint("Horizontal", 5),
    Sketcher.Constraint("Vertical", 6),
    Sketcher.Constraint("Coincident", 6, 1, 0, 2),
    Sketcher.Constraint("Horizontal", 4, 2, 6, 2),
    Sketcher.Constraint("DistanceX", 5, 2, 5, 1, Q("3 mm")),
    Sketcher.Constraint("DistanceY", 0, 2, 0, 1, Q("27 mm")),
    Sketcher.Constraint("DistanceY", 2, 1, 2, 2, Q("16 mm")),
    Sketcher.Constraint("Angle", 3, Q("45 deg")),
    Sketcher.Constraint("DistanceX", 1, 1, 1, 2, Q("1.8 mm")),
    Sketcher.Constraint("DistanceX", -1, 1, 0, 2, Q("25 mm")),
    Sketcher.Constraint("DistanceY", 0, 2, -1, 1, Q("24 mm")),
])
groove4 = body.newObject("PartDesign::Groove", "Groove003")
groove4.Profile = sketch17
groove4.ReferenceAxis = (sketch17, ["Axis0"])
groove4.Angle = 360

doc.recompute()
